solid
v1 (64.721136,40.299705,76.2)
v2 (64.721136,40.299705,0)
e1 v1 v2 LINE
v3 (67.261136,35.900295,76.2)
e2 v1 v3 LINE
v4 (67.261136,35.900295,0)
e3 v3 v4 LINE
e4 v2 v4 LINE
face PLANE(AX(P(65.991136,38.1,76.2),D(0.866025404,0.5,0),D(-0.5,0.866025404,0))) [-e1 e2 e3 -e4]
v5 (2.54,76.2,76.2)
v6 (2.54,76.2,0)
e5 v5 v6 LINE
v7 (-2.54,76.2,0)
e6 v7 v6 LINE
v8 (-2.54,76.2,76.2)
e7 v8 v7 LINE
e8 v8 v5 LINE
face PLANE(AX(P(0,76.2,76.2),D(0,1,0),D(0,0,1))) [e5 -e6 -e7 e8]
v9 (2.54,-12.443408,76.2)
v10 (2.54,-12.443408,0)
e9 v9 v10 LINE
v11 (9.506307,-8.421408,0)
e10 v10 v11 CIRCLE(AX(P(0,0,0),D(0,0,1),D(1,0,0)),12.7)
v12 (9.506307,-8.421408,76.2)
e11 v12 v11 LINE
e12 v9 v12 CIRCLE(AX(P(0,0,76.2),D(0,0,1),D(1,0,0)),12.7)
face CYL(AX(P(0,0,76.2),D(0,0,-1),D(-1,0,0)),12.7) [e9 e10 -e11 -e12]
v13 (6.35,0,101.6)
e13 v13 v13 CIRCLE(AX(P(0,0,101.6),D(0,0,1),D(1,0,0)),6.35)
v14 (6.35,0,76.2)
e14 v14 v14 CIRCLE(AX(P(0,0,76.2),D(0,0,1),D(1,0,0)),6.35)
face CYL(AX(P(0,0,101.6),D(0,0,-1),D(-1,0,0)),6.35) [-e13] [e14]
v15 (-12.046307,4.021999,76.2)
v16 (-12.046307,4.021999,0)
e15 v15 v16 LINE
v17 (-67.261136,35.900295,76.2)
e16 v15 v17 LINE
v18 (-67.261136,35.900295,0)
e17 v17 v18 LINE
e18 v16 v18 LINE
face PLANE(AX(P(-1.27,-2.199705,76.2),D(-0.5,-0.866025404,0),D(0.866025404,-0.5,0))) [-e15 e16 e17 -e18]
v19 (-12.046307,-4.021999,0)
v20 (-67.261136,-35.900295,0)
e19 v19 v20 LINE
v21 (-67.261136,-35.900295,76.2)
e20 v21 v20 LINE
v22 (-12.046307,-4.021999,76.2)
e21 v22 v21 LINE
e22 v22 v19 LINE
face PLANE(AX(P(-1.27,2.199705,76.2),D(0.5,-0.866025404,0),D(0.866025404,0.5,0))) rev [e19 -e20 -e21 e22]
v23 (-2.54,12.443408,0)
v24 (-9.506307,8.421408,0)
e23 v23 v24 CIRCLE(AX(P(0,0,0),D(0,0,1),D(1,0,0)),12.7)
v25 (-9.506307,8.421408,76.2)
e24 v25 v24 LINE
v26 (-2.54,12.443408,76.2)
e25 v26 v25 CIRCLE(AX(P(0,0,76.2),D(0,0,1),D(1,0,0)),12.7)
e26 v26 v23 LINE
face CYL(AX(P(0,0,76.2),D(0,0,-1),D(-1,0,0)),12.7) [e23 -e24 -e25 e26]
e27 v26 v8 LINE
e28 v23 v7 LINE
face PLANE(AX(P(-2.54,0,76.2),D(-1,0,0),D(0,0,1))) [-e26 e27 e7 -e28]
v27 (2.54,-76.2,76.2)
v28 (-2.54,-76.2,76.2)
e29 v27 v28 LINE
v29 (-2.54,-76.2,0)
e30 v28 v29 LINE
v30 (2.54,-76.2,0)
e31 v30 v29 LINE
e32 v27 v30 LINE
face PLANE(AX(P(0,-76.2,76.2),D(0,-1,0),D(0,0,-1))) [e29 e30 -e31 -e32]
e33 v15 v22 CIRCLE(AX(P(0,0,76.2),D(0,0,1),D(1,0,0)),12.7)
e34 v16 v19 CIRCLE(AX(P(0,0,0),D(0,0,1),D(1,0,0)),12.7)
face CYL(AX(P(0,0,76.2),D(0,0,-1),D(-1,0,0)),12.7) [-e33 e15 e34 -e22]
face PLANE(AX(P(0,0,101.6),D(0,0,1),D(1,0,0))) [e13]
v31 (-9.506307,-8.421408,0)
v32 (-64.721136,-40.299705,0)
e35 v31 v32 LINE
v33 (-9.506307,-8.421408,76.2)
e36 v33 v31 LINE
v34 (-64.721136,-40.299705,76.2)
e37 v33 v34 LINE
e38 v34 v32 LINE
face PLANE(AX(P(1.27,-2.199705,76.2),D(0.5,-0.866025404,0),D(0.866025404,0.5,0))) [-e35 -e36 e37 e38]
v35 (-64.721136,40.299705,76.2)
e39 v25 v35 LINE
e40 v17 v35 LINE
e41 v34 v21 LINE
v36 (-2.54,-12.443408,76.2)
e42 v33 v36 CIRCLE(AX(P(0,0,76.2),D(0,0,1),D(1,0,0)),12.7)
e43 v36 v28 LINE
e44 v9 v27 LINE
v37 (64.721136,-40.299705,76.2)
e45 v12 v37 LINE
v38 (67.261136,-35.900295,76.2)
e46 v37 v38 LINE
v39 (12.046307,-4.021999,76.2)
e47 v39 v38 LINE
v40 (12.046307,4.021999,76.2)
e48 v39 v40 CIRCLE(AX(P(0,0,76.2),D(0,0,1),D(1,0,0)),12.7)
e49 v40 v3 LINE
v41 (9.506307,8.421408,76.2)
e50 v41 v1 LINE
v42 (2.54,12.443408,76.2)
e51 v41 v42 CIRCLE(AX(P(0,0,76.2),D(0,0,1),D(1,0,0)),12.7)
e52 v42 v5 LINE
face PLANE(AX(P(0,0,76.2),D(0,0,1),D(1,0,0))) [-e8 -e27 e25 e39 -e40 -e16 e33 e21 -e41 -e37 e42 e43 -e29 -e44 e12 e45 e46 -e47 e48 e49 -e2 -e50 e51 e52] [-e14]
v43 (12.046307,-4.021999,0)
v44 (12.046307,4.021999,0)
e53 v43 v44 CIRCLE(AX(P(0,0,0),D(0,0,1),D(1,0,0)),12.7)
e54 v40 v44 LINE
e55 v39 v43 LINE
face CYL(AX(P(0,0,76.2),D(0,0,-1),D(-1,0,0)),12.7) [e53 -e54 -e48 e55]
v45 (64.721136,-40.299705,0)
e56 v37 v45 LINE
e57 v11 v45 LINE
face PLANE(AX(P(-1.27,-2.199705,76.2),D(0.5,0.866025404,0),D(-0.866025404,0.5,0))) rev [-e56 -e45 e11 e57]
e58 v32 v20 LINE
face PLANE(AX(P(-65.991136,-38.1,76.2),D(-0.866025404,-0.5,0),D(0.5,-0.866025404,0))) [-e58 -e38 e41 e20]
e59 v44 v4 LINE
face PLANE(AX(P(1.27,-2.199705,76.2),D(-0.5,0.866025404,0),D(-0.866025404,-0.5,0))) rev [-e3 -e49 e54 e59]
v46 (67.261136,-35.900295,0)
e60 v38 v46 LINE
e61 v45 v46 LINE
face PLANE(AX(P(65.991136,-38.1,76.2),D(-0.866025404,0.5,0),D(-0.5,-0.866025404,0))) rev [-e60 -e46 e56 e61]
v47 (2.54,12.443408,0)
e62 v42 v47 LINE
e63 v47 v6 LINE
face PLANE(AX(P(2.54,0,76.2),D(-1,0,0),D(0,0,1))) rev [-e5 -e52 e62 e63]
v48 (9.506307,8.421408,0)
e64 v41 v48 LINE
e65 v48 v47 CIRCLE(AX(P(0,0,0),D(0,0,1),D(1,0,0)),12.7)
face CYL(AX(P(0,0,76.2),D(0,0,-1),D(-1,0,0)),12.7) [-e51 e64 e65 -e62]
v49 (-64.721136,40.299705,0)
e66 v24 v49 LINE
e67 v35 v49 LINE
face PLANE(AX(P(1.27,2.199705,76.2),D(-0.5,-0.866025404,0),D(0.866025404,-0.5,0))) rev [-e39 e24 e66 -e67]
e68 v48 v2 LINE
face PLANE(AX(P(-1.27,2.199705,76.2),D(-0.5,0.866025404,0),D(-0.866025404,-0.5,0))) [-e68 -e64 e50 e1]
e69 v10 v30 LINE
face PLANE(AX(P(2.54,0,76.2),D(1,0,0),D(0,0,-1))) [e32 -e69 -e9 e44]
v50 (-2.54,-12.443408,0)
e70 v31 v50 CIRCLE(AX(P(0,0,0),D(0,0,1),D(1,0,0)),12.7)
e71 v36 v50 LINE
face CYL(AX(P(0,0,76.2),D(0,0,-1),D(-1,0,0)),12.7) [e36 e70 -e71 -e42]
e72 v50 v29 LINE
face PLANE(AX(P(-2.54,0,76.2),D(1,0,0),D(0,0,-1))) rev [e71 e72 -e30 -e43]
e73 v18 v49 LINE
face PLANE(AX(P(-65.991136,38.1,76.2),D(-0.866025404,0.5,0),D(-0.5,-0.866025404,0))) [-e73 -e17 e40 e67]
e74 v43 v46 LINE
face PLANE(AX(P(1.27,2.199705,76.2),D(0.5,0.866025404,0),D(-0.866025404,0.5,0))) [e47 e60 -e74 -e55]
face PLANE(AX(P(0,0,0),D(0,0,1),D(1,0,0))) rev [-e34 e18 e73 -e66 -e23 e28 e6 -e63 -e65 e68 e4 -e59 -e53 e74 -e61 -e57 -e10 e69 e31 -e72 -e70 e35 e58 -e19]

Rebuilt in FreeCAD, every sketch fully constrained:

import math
import FreeCAD as App
import Part
import Sketcher

V = App.Vector
Q = App.Units.Quantity

doc = App.newDocument("Part")
params = doc.addObject("Spreadsheet::Sheet", "Params")
for row, (alias, value) in enumerate([
    ("sketch1_radius", "0.5 in"),
    ("sketch1_width", "0.2 in"),
    ("sketch1_length", "0.2 in"),
    ("pad1_length", "3 in"),
    ("sketch2_diameter", "0.5 in"),
    ("pad2_length", "1 in"),
], start=1):
    params.set(f"A{row}", alias)
    params.set(f"B{row}", "=" + value)
    params.setAlias(f"B{row}", alias)

body = doc.addObject("PartDesign::Body", "Body")

# Sketch on XY plane
sketch1 = body.newObject("Sketcher::SketchObject", "Sketch")
sketch1.AttachmentSupport = (doc.getObject("XY_Plane"), [""])
sketch1.MapMode = "FlatFace"
sketch1.addGeometry(Part.LineSegment(V(-3, -76, 0), V(3, -76, 0)), False)
sketch1.addGeometry(Part.LineSegment(V(3, -76, 0), V(3, -12, 0)), False)
sketch1.addGeometry(Part.ArcOfCircle(Part.Circle(V(0, 0, 0), V(0, 0, 1), 13), math.radians(-78), math.radians(-42)), False)
sketch1.addGeometry(Part.LineSegment(V(10, -8, 0), V(65, -40, 0)), False)
sketch1.addGeometry(Part.LineSegment(V(65, -40, 0), V(67, -36, 0)), False)
sketch1.addGeometry(Part.LineSegment(V(67, -36, 0), V(12, -4, 0)), False)
sketch1.addGeometry(Part.ArcOfCircle(Part.Circle(V(0, 0, 0), V(0, 0, 1), 13), math.radians(-18), math.radians(18)), False)
sketch1.addGeometry(Part.LineSegment(V(12, 4, 0), V(67, 36, 0)), False)
sketch1.addGeometry(Part.LineSegment(V(67, 36, 0), V(65, 40, 0)), False)
sketch1.addGeometry(Part.LineSegment(V(65, 40, 0), V(10, 8, 0)), False)
sketch1.addGeometry(Part.ArcOfCircle(Part.Circle(V(0, 0, 0), V(0, 0, 1), 13), math.radians(42), math.radians(78)), False)
sketch1.addGeometry(Part.LineSegment(V(3, 12, 0), V(3, 76, 0)), False)
sketch1.addGeometry(Part.LineSegment(V(3, 76, 0), V(-3, 76, 0)), False)
sketch1.addGeometry(Part.LineSegment(V(-3, 76, 0), V(-3, 12, 0)), False)
sketch1.addGeometry(Part.ArcOfCircle(Part.Circle(V(0, 0, 0), V(0, 0, 1), 13), math.radians(102), math.radians(138)), False)
sketch1.addGeometry(Part.LineSegment(V(-10, 8, 0), V(-65, 40, 0)), False)
sketch1.addGeometry(Part.LineSegment(V(-65, 40, 0), V(-67, 36, 0)), False)
sketch1.addGeometry(Part.LineSegment(V(-67, 36, 0), V(-12, 4, 0)), False)
sketch1.addGeometry(Part.ArcOfCircle(Part.Circle(V(0, 0, 0), V(0, 0, 1), 13), math.radians(162), math.radians(198)), False)
sketch1.addGeometry(Part.LineSegment(V(-12, -4, 0), V(-67, -36, 0)), False)
sketch1.addGeometry(Part.LineSegment(V(-67, -36, 0), V(-65, -40, 0)), False)
sketch1.addGeometry(Part.LineSegment(V(-65, -40, 0), V(-10, -8, 0)), False)
sketch1.addGeometry(Part.ArcOfCircle(Part.Circle(V(0, 0, 0), V(0, 0, 1), 13), math.radians(-138), math.radians(-102)), False)
sketch1.addGeometry(Part.LineSegment(V(-3, -12, 0), V(-3, -76, 0)), False)
sketch1.addConstraint(Sketcher.Constraint("Coincident", 0, 2, 1, 1))
sketch1.addConstraint(Sketcher.Constraint("Coincident", 1, 2, 2, 1))
sketch1.addConstraint(Sketcher.Constraint("Coincident", 2, 2, 3, 1))
sketch1.addConstraint(Sketcher.Constraint("Coincident", 3, 2, 4, 1))
sketch1.addConstraint(Sketcher.Constraint("Coincident", 4, 2, 5, 1))
sketch1.addConstraint(Sketcher.Constraint("Coincident", 5, 2, 6, 1))
sketch1.addConstraint(Sketcher.Constraint("Coincident", 6, 2, 7, 1))
sketch1.addConstraint(Sketcher.Constraint("Coincident", 7, 2, 8, 1))
sketch1.addConstraint(Sketcher.Constraint("Coincident", 8, 2, 9, 1))
sketch1.addConstraint(Sketcher.Constraint("Coincident", 9, 2, 10, 1))
sketch1.addConstraint(Sketcher.Constraint("Coincident", 10, 2, 11, 1))
sketch1.addConstraint(Sketcher.Constraint("Coincident", 11, 2, 12, 1))
sketch1.addConstraint(Sketcher.Constraint("Coincident", 12, 2, 13, 1))
sketch1.addConstraint(Sketcher.Constraint("Coincident", 13, 2, 14, 1))
sketch1.addConstraint(Sketcher.Constraint("Coincident", 14, 2, 15, 1))
sketch1.addConstraint(Sketcher.Constraint("Coincident", 15, 2, 16, 1))
sketch1.addConstraint(Sketcher.Constraint("Coincident", 16, 2, 17, 1))
sketch1.addConstraint(Sketcher.Constraint("Coincident", 17, 2, 18, 1))
sketch1.addConstraint(Sketcher.Constraint("Coincident", 18, 2, 19, 1))
sketch1.addConstraint(Sketcher.Constraint("Coincident", 19, 2, 20, 1))
sketch1.addConstraint(Sketcher.Constraint("Coincident", 20, 2, 21, 1))
sketch1.addConstraint(Sketcher.Constraint("Coincident", 21, 2, 22, 1))
sketch1.addConstraint(Sketcher.Constraint("Coincident", 22, 2, 23, 1))
sketch1.addConstraint(Sketcher.Constraint("Coincident", 23, 2, 0, 1))
sketch1.addConstraint(Sketcher.Constraint("Horizontal", 0))
sketch1.addConstraint(Sketcher.Constraint("Vertical", 1))
sketch1.addConstraint(Sketcher.Constraint("Vertical", 11))
sketch1.addConstraint(Sketcher.Constraint("Horizontal", 12))
sketch1.addConstraint(Sketcher.Constraint("Vertical", 13))
sketch1.addConstraint(Sketcher.Constraint("Vertical", 23))
sketch1.addConstraint(Sketcher.Constraint("Coincident", 2, 3, -1, 1))
sketch1.addConstraint(Sketcher.Constraint("Coincident", 6, 3, -1, 1))
sketch1.addConstraint(Sketcher.Constraint("Coincident", 10, 3, -1, 1))
sketch1.addConstraint(Sketcher.Constraint("Coincident", 14, 3, -1, 1))
sketch1.addConstraint(Sketcher.Constraint("Coincident", 18, 3, -1, 1))
sketch1.addConstraint(Sketcher.Constraint("Coincident", 22, 3, -1, 1))
sketch1.addConstraint(Sketcher.Constraint("Equal", 2, 6))
sketch1.addConstraint(Sketcher.Constraint("Equal", 6, 10))
sketch1.addConstraint(Sketcher.Constraint("Equal", 10, 14))
sketch1.addConstraint(Sketcher.Constraint("Equal", 14, 18))
sketch1.addConstraint(Sketcher.Constraint("Equal", 18, 22))
sketch1.addConstraint(Sketcher.Constraint("Symmetric", 0, 2, 12, 2, -1, 1))
sketch1.addConstraint(Sketcher.Constraint("Symmetric", 3, 2, 15, 2, -1, 1))
sketch1.addConstraint(Sketcher.Constraint("Symmetric", 4, 2, 16, 2, -1, 1))
sketch1.addConstraint(Sketcher.Constraint("Symmetric", 7, 2, 19, 2, -1, 1))
sketch1.addConstraint(Sketcher.Constraint("Symmetric", 8, 2, 20, 2, -1, 1))
sketch1.addConstraint(Sketcher.Constraint("Symmetric", 8, 2, 15, 2, -2))
sketch1.addConstraint(Sketcher.Constraint("Symmetric", 7, 2, 16, 2, -2))
sketch1.addConstraint(Sketcher.Constraint("Perpendicular", 3, 4))
sketch1.addConstraint(Sketcher.Constraint("Perpendicular", 4, 5))
sketch1.addConstraint(Sketcher.Constraint("Perpendicular", 7, 8))
sketch1.addConstraint(Sketcher.Constraint("Perpendicular", 8, 9))
sketch1.addConstraint(Sketcher.Constraint("Parallel", 5, 15))
sketch1.addConstraint(Sketcher.Constraint("Perpendicular", 16, 17))
sketch1.addConstraint(Sketcher.Constraint("Parallel", 9, 19))
sketch1.addConstraint(Sketcher.Constraint("Perpendicular", 20, 21))
sketch1.addConstraint(Sketcher.Constraint("Horizontal", 10, 2, 13, 2))
sketch1.addConstraint(Sketcher.Constraint("Horizontal", 1, 2, 22, 2))
sketch1.addConstraint(Sketcher.Constraint("Equal", 3, 5))
sketch1.addConstraint(Sketcher.Constraint("Radius", 2, Q("0.5 in")))
sketch1.addConstraint(Sketcher.Constraint("DistanceX", 0, 1, 0, 2, Q("0.2 in")))
sketch1.addConstraint(Sketcher.Constraint("DistanceY", 0, 2, -1, 1, Q("3 in")))
sketch1.addConstraint(Sketcher.Constraint("Angle", 3, Q("-30 deg")))
sketch1.addConstraint(Sketcher.Constraint("Distance", 4, Q("0.2 in")))
sketch1.addConstraint(Sketcher.Constraint("DistanceX", 2, 2, 3, 2, 55.214828))
sketch1.setExpression("Constraints[59]", "Params.sketch1_radius")
sketch1.setExpression("Constraints[60]", "Params.sketch1_width")
sketch1.setExpression("Constraints[63]", "Params.sketch1_length")
pad1 = body.newObject("PartDesign::Pad", "Pad")
pad1.Profile = sketch1
pad1.setExpression("Length", "Params.pad1_length")

# Sketch on XY plane
sketch2 = body.newObject("Sketcher::SketchObject", "Sketch001")
sketch2.AttachmentSupport = (doc.getObject("XY_Plane"), [""])
sketch2.MapMode = "FlatFace"
sketch2.AttachmentOffset = App.Placement(V(0, 0, 3 * 25.4), App.Rotation())
sketch2.addGeometry(Part.Circle(V(0, 0, 0), V(0, 0, 1), 6), False)
sketch2.addConstraint(Sketcher.Constraint("Coincident", 0, 3, -1, 1))
sketch2.addConstraint(Sketcher.Constraint("Diameter", 0, Q("0.5 in")))
sketch2.setExpression("Constraints[1]", "Params.sketch2_diameter")
pad2 = body.newObject("PartDesign::Pad", "Pad001")
pad2.Profile = sketch2
pad2.setExpression("Length", "Params.pad2_length")

doc.recompute()
